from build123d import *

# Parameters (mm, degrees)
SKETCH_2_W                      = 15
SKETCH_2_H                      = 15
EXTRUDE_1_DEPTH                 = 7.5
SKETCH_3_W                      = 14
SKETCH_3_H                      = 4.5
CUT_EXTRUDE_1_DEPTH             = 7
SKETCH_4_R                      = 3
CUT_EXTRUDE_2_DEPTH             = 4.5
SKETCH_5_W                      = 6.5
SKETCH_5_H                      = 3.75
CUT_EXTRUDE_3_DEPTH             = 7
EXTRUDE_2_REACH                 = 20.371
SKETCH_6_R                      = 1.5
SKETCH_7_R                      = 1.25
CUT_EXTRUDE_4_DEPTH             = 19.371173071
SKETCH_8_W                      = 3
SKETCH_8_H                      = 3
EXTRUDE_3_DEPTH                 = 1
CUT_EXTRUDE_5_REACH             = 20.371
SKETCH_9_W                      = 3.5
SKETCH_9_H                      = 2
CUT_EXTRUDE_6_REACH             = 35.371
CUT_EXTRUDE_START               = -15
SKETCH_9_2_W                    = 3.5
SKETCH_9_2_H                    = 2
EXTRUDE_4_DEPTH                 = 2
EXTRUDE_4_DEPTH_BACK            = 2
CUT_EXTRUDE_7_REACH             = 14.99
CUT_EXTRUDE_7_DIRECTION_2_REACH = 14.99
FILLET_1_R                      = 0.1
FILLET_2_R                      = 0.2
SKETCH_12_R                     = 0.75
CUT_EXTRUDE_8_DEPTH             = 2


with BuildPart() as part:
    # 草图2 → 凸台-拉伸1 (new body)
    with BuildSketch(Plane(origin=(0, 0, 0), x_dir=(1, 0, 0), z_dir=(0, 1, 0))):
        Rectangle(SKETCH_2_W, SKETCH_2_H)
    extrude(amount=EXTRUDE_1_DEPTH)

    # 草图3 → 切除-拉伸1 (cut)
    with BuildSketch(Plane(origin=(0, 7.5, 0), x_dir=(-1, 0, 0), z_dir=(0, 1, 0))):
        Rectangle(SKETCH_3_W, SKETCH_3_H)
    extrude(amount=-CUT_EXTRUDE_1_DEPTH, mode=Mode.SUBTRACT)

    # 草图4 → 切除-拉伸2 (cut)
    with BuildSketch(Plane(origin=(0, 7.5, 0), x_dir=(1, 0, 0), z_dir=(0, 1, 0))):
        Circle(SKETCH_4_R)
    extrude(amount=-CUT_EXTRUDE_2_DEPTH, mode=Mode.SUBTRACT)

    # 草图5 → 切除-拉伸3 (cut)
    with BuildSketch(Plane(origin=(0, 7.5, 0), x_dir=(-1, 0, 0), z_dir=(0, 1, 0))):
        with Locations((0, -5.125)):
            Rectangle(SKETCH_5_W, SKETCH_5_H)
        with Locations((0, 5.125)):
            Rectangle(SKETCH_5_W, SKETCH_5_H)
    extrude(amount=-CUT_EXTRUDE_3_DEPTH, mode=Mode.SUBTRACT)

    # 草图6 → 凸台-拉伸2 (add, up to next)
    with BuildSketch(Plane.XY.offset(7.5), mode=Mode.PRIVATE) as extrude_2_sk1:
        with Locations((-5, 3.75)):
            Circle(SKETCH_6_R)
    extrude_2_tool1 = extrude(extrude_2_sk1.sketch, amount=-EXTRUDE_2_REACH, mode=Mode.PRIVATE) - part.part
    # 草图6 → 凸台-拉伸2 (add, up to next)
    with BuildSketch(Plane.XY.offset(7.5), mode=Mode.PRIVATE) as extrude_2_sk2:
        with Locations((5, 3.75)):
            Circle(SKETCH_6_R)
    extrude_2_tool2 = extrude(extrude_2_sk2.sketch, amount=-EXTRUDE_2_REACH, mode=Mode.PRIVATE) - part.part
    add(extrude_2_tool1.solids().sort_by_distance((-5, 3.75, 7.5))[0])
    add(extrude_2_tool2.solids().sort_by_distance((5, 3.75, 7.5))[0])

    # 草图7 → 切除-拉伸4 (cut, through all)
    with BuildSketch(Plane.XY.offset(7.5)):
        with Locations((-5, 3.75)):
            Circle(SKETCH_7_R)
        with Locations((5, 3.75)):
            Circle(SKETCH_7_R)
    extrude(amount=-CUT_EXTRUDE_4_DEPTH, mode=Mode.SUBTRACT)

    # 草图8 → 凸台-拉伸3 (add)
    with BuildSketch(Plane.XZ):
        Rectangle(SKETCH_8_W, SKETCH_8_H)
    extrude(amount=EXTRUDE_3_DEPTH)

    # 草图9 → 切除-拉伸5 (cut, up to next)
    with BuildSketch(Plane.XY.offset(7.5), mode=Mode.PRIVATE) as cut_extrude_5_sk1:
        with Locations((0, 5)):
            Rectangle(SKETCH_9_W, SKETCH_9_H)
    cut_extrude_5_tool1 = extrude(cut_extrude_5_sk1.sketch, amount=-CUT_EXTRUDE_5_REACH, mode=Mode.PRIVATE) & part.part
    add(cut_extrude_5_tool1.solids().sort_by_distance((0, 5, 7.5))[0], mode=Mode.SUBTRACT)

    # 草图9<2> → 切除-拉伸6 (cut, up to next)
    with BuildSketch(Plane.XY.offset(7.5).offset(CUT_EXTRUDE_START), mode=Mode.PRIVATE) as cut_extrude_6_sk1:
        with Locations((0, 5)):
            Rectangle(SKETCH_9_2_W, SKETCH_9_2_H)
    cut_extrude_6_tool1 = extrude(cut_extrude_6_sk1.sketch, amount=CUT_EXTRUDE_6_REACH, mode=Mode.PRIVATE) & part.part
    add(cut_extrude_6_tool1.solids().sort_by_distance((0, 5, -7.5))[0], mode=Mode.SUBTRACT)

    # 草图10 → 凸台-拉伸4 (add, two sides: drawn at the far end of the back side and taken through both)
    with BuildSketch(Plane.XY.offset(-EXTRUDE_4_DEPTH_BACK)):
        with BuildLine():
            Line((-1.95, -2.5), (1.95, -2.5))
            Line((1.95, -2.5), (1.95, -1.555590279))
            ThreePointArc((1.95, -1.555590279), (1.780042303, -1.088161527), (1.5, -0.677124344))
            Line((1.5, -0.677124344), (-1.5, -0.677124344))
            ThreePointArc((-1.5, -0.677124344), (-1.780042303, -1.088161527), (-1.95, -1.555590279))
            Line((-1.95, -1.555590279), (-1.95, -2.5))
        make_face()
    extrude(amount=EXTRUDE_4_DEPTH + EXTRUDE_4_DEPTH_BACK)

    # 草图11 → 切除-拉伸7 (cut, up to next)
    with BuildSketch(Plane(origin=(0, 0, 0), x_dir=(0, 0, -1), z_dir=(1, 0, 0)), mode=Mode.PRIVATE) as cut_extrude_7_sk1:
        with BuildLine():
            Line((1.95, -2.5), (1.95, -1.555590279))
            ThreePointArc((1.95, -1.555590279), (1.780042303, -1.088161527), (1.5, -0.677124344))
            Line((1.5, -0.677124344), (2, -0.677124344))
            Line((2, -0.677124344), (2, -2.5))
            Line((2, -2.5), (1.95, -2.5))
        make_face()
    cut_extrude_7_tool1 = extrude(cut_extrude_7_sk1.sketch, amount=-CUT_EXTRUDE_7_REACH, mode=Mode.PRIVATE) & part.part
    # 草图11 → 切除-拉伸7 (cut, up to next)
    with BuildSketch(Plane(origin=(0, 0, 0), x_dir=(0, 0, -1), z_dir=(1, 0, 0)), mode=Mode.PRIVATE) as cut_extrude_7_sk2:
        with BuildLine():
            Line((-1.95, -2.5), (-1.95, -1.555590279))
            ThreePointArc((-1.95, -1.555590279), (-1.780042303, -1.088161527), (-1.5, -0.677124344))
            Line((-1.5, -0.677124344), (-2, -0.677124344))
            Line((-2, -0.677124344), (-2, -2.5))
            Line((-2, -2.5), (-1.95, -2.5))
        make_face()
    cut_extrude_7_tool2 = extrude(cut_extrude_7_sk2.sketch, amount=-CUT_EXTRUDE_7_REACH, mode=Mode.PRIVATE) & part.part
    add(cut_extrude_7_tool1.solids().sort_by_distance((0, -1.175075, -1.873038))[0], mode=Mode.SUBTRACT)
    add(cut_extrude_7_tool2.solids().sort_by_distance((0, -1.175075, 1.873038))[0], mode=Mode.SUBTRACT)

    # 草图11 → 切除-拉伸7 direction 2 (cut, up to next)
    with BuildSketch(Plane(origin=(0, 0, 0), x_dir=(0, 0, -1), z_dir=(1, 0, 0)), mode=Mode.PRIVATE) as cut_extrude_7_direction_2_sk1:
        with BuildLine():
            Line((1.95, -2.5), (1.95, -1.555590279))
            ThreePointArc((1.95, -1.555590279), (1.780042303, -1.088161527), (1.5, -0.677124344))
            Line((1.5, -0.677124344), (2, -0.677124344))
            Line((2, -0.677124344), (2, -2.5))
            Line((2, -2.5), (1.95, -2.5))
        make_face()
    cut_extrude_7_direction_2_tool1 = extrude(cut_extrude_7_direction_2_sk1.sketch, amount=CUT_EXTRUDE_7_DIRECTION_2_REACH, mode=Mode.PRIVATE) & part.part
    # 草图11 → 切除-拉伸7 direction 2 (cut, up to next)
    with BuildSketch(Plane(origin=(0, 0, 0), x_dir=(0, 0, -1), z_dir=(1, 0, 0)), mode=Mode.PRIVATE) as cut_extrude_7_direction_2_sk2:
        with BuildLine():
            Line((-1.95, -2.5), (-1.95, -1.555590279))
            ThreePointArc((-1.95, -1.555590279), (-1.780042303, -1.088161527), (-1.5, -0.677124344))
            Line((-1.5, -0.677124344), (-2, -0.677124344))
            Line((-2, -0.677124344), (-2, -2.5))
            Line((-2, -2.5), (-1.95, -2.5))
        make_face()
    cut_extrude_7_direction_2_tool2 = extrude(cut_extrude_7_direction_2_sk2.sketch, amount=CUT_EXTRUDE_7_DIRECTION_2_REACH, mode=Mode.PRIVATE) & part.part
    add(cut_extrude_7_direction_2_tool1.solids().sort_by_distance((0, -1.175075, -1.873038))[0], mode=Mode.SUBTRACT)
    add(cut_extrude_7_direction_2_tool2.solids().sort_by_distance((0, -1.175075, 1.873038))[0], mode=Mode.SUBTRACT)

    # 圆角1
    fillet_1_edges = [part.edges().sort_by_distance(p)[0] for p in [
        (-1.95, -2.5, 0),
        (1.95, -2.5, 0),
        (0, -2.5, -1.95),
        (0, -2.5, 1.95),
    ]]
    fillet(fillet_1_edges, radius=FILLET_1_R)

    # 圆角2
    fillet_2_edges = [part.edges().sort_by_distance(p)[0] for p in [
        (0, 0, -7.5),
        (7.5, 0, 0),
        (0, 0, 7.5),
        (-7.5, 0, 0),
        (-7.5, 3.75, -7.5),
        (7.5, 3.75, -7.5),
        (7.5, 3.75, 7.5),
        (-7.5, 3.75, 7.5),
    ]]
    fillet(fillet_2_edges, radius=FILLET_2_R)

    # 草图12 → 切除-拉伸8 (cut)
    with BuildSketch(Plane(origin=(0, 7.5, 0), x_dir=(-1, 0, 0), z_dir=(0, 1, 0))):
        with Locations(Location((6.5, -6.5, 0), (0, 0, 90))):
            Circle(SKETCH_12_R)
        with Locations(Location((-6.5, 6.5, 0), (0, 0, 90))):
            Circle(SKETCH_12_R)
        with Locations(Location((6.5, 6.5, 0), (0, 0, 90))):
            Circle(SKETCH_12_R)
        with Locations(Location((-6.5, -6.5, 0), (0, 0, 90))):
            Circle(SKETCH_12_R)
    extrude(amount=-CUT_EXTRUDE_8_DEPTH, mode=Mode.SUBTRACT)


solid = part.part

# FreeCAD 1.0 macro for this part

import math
import FreeCAD as App
import Part
import Sketcher

V = App.Vector


def edges_at(feature, points):
    """Names of the edges that pass closest to the given points."""
    edges = feature.Shape.Edges
    near = lambda p: min(range(len(edges)), key=lambda i: edges[i].distToShape(Part.Vertex(*p))[0])
    return sorted({f"Edge{near(p) + 1}" for p in points})


def add_polygon(sketch, points):
    """Adds a closed chain of lines whose ends are joined by coincident constraints."""
    first, n = sketch.GeometryCount, len(points)
    for a, b in zip(points, points[1:] + points[:1]):
        sketch.addGeometry(Part.LineSegment(App.Vector(*a, 0), App.Vector(*b, 0)), False)
    for i in range(n):
        sketch.addConstraint(Sketcher.Constraint("Coincident", first + i, 2, first + (i + 1) % n, 1))

doc = App.newDocument("Part")
body = doc.addObject("PartDesign::Body", "Body")

sketch1 = body.newObject("Sketcher::SketchObject", "Sketch")
sketch1.AttachmentSupport = (doc.getObject("XZ_Plane"), [""])
sketch1.MapMode = "FlatFace"
add_polygon(sketch1, [(-8, -8), (-8, 8), (8, 8), (8, -8)])
sketch1.addConstraint([
    Sketcher.Constraint("Vertical", 0),
    Sketcher.Constraint("Horizontal", 1),
    Sketcher.Constraint("Vertical", 2),
    Sketcher.Constraint("Horizontal", 3),
    Sketcher.Constraint("Symmetric", 0, 2, 2, 2, -1, 1),
    Sketcher.Constraint("Equal", 3, 0),
    Sketcher.Constraint("DistanceX", 1, 1, 1, 2, 15.0),
])
pad1 = body.newObject("PartDesign::Pad", "Pad")
pad1.Profile = sketch1
pad1.Length = 7.5
pad1.Reversed = True

sketch2 = body.newObject("Sketcher::SketchObject", "Sketch001")
sketch2.AttachmentSupport = (doc.getObject("XZ_Plane"), [""])
sketch2.MapMode = "FlatFace"
sketch2.AttachmentOffset = App.Placement(V(0, 0, -7.5), App.Rotation())
add_polygon(sketch2, [(7, 2.2), (7, -2.2), (-7, -2.2), (-7, 2.2)])
sketch2.addConstraint([
    Sketcher.Constraint("Vertical", 0),
    Sketcher.Constraint("Horizontal", 1),
    Sketcher.Constraint("Vertical", 2),
    Sketcher.Constraint("Horizontal", 3),
    Sketcher.Constraint("Symmetric", 0, 2, 2, 2, -1, 1),
    Sketcher.Constraint("DistanceX", 1, 2, 1, 1, 14.0),
    Sketcher.Constraint("DistanceY", 0, 2, 0, 1, 4.5),
])
pocket1 = body.newObject("PartDesign::Pocket", "Pocket")
pocket1.Profile = sketch2
pocket1.Length = 7
pocket1.Reversed = True

sketch3 = body.newObject("Sketcher::SketchObject", "Sketch002")
sketch3.AttachmentSupport = (doc.getObject("XZ_Plane"), [""])
sketch3.MapMode = "FlatFace"
sketch3.AttachmentOffset = App.Placement(V(0, 0, -7.5), App.Rotation())
sketch3.addGeometry(Part.Circle(V(0, 0, 0), V(0, 0, 1), 3), False)
sketch3.addConstraint([
    Sketcher.Constraint("Coincident", 0, 3, -1, 1),
    Sketcher.Constraint("Diameter", 0, 6.0),
])
pocket2 = body.newObject("PartDesign::Pocket", "Pocket001")
pocket2.Profile = sketch3
pocket2.Length = 4.5
pocket2.Reversed = True

sketch4 = body.newObject("Sketcher::SketchObject", "Sketch003")
sketch4.AttachmentSupport = (doc.getObject("XZ_Plane"), [""])
sketch4.MapMode = "FlatFace"
sketch4.AttachmentOffset = App.Placement(V(0, 0, -7.5), App.Rotation())
add_polygon(sketch4, [(3.2, -3.2), (3.2, -7), (-3.2, -7), (-3.2, -3.2)])
add_polygon(sketch4, [(3.2, 7), (3.2, 3.2), (-3.2, 3.2), (-3.2, 7)])
sketch4.addConstraint([
    Sketcher.Constraint("Vertical", 0),
    Sketcher.Constraint("Horizontal", 1),
    Sketcher.Constraint("Vertical", 2),
    Sketcher.Constraint("Horizontal", 3),
    Sketcher.Constraint("Vertical", 4),
    Sketcher.Constraint("Horizontal", 5),
    Sketcher.Constraint("Vertical", 6),
    Sketcher.Constraint("Horizontal", 7),
    Sketcher.Constraint("Symmetric", 2, 2, 4, 2, -1, 1),
    Sketcher.Constraint("Symmetric", 0, 2, 6, 2, -1, 1),
    Sketcher.Constraint("Vertical", 3, 2, 4, 2),
    Sketcher.Constraint("DistanceX", 1, 2, 1, 1, 6.5),
    Sketcher.Constraint("DistanceY", 0, 2, -1, 1, 7.0),
    Sketcher.Constraint("DistanceY", 0, 2, 0, 1, 3.75),
])
pocket3 = body.newObject("PartDesign::Pocket", "Pocket002")
pocket3.Profile = sketch4
pocket3.Length = 7
pocket3.Reversed = True

sketch5 = body.newObject("Sketcher::SketchObject", "Sketch004")
sketch5.AttachmentSupport = (doc.getObject("XY_Plane"), [""])
sketch5.MapMode = "FlatFace"
sketch5.AttachmentOffset = App.Placement(V(0, 0, 7.5), App.Rotation())
sketch5.addGeometry(Part.Circle(V(-5, 3.8, 0), V(0, 0, 1), 1.5), False)
sketch5.addConstraint([
    Sketcher.Constraint("Diameter", 0, 3.0),
    Sketcher.Constraint("DistanceX", 0, 3, -1, 1, 5.0),
    Sketcher.Constraint("DistanceY", -1, 1, 0, 3, 3.75),
])
pad2 = body.newObject("PartDesign::Pad", "Pad001")
pad2.Profile = sketch5
pad2.Length = 9.75
pad2.Reversed = True

sketch6 = body.newObject("Sketcher::SketchObject", "Sketch005")
sketch6.AttachmentSupport = (doc.getObject("XY_Plane"), [""])
sketch6.MapMode = "FlatFace"
sketch6.AttachmentOffset = App.Placement(V(0, 0, 7.5), App.Rotation())
sketch6.addGeometry(Part.Circle(V(5, 3.8, 0), V(0, 0, 1), 1.5), False)
sketch6.addConstraint([
    Sketcher.Constraint("Diameter", 0, 3.0),
    Sketcher.Constraint("DistanceX", -1, 1, 0, 3, 5.0),
    Sketcher.Constraint("DistanceY", -1, 1, 0, 3, 3.75),
])
pad3 = body.newObject("PartDesign::Pad", "Pad002")
pad3.Profile = sketch6
pad3.Length = 9.75
pad3.Reversed = True

sketch7 = body.newObject("Sketcher::SketchObject", "Sketch006")
sketch7.AttachmentSupport = (doc.getObject("XY_Plane"), [""])
sketch7.MapMode = "FlatFace"
sketch7.AttachmentOffset = App.Placement(V(0, 0, 7.5), App.Rotation())
sketch7.addGeometry([
    Part.Circle(V(-5, 3.8, 0), V(0, 0, 1), 1.2),
    Part.Circle(V(5, 3.8, 0), V(0, 0, 1), 1.2),
], False)
sketch7.addConstraint([
    Sketcher.Constraint("Equal", 0, 1),
    Sketcher.Constraint("Symmetric", 0, 3, 1, 3, -2),
    Sketcher.Constraint("Diameter", 0, 2.5),
    Sketcher.Constraint("DistanceX", 0, 3, -1, 1, 5.0),
    Sketcher.Constraint("DistanceY", -1, 1, 0, 3, 3.75),
])
pocket4 = body.newObject("PartDesign::Pocket", "Pocket003")
pocket4.Profile = sketch7
pocket4.Type = "ThroughAll"

sketch8 = body.newObject("Sketcher::SketchObject", "Sketch007")
sketch8.AttachmentSupport = (doc.getObject("XZ_Plane"), [""])
sketch8.MapMode = "FlatFace"
add_polygon(sketch8, [(-1.5, 1.5), (-1.5, -1.5), (1.5, -1.5), (1.5, 1.5)])
sketch8.addConstraint([
    Sketcher.Constraint("Vertical", 0),
    Sketcher.Constraint("Horizontal", 1),
    Sketcher.Constraint("Vertical", 2),
    Sketcher.Constraint("Horizontal", 3),
    Sketcher.Constraint("Symmetric", 0, 2, 2, 2, -1, 1),
    Sketcher.Constraint("Equal", 3, 0),
    Sketcher.Constraint("DistanceX", 1, 1, 1, 2, 3.0),
])
pad4 = body.newObject("PartDesign::Pad", "Pad003")
pad4.Profile = sketch8
pad4.Length = 1

sketch9 = body.newObject("Sketcher::SketchObject", "Sketch008")
sketch9.AttachmentSupport = (doc.getObject("XY_Plane"), [""])
sketch9.MapMode = "FlatFace"
sketch9.AttachmentOffset = App.Placement(V(0, 0, 7.5), App.Rotation())
add_polygon(sketch9, [(-1.8, 6), (-1.8, 4), (1.8, 4), (1.8, 6)])
sketch9.addConstraint([
    Sketcher.Constraint("Vertical", 0),
    Sketcher.Constraint("Horizontal", 1),
    Sketcher.Constraint("Vertical", 2),
    Sketcher.Constraint("Horizontal", 3),
    Sketcher.Constraint("DistanceY", 0, 2, 0, 1, 2.0),
    Sketcher.Constraint("DistanceX", 1, 1, 1, 2, 3.5),
    Sketcher.Constraint("DistanceY", -1, 1, 0, 2, 4.0),
    Sketcher.Constraint("DistanceX", 0, 2, -1, 1, 1.75),
])
pocket5 = body.newObject("PartDesign::Pocket", "Pocket004")
pocket5.Profile = sketch9
pocket5.Type = "UpToFirst"

sketch10 = body.newObject("Sketcher::SketchObject", "Sketch009")
sketch10.AttachmentSupport = (doc.getObject("XY_Plane"), [""])
sketch10.MapMode = "FlatFace"
sketch10.AttachmentOffset = App.Placement(V(0, 0, -7.5), App.Rotation())
add_polygon(sketch10, [(-1.8, 6), (-1.8, 4), (1.8, 4), (1.8, 6)])
sketch10.addConstraint([
    Sketcher.Constraint("Vertical", 0),
    Sketcher.Constraint("Horizontal", 1),
    Sketcher.Constraint("Vertical", 2),
    Sketcher.Constraint("Horizontal", 3),
    Sketcher.Constraint("DistanceY", 0, 2, 0, 1, 2.0),
    Sketcher.Constraint("DistanceX", 1, 1, 1, 2, 3.5),
    Sketcher.Constraint("DistanceY", -1, 1, 0, 2, 4.0),
    Sketcher.Constraint("DistanceX", 0, 2, -1, 1, 1.75),
])
pocket6 = body.newObject("PartDesign::Pocket", "Pocket005")
pocket6.Profile = sketch10
pocket6.Type = "UpToFirst"
pocket6.Reversed = True

sketch11 = body.newObject("Sketcher::SketchObject", "Sketch010")
sketch11.AttachmentSupport = (doc.getObject("XY_Plane"), [""])
sketch11.MapMode = "FlatFace"
sketch11.addGeometry([
    Part.LineSegment(V(-1.9, -2.5, 0), V(1.9, -2.5, 0)),
    Part.LineSegment(V(1.9, -2.5, 0), V(1.9, -1.6, 0)),
    Part.ArcOfCircle(Part.Circle(V(0, -2, 0), V(0, 0, 1), 2), math.radians(13), math.radians(41)),
    Part.LineSegment(V(1.5, -0.7, 0), V(-1.5, -0.7, 0)),
    Part.ArcOfCircle(Part.Circle(V(0, -2, 0), V(0, 0, 1), 2), math.radians(139), math.radians(167)),
    Part.LineSegment(V(-1.9, -1.6, 0), V(-1.9, -2.5, 0)),
], False)
sketch11.addConstraint([
    Sketcher.Constraint("Coincident", 0, 2, 1, 1),
    Sketcher.Constraint("Coincident", 1, 2, 2, 1),
    Sketcher.Constraint("Coincident", 2, 2, 3, 1),
    Sketcher.Constraint("Coincident", 3, 2, 4, 1),
    Sketcher.Constraint("Coincident", 4, 2, 5, 1),
    Sketcher.Constraint("Coincident", 5, 2, 0, 1),
    Sketcher.Constraint("Horizontal", 0),
    Sketcher.Constraint("Vertical", 1),
    Sketcher.Constraint("Horizontal", 3),
    Sketcher.Constraint("Vertical", 5),
    Sketcher.Constraint("Coincident", 4, 3, 2, 3),
    Sketcher.Constraint("Equal", 2, 4),
    Sketcher.Constraint("Symmetric", 1, 2, 4, 2, -2),
    Sketcher.Constraint("Radius", 2, 2.0),
    Sketcher.Constraint("DistanceX", 3, 2, 3, 1, 3.0),
    Sketcher.Constraint("DistanceX", 0, 1, 0, 2, 3.9),
    Sketcher.Constraint("DistanceY", 2, 3, -1, 1, 2.0),
    Sketcher.Constraint("DistanceY", 0, 2, -1, 1, 2.5),
])
pad5 = body.newObject("PartDesign::Pad", "Pad004")
pad5.Profile = sketch11
pad5.Type = "TwoLengths"
pad5.Length = 2
pad5.Length2 = 2

sketch12 = body.newObject("Sketcher::SketchObject", "Sketch011")
sketch12.AttachmentSupport = (doc.getObject("YZ_Plane"), [""])
sketch12.MapMode = "FlatFace"
sketch12.addGeometry([
    Part.LineSegment(V(-1.56, -1.95, 0), V(-2.5, -1.95, 0)),
    Part.LineSegment(V(-2.5, -1.95, 0), V(-2.5, -2, 0)),
    Part.LineSegment(V(-2.5, -2, 0), V(-0.68, -2, 0)),
    Part.LineSegment(V(-0.68, -2, 0), V(-0.68, -1.5, 0)),
    Part.ArcOfCircle(Part.Circle(V(-2, 0, 0), V(0, 0, 1), 2), math.radians(-77), math.radians(-49)),
], False)
sketch12.addConstraint([
    Sketcher.Constraint("Coincident", 0, 2, 1, 1),
    Sketcher.Constraint("Coincident", 1, 2, 2, 1),
    Sketcher.Constraint("Coincident", 2, 2, 3, 1),
    Sketcher.Constraint("Coincident", 3, 2, 4, 2),
    Sketcher.Constraint("Coincident", 4, 1, 0, 1),
    Sketcher.Constraint("Horizontal", 0),
    Sketcher.Constraint("Vertical", 1),
    Sketcher.Constraint("Horizontal", 2),
    Sketcher.Constraint("Vertical", 3),
    Sketcher.Constraint("PointOnObject", 4, 3, -1),
    Sketcher.Constraint("Radius", 4, 2.0),
    Sketcher.Constraint("DistanceY", 3, 1, 3, 2, 0.5),
    Sketcher.Constraint("DistanceX", 4, 3, -1, 1, 2.0),
    Sketcher.Constraint("DistanceY", 1, 2, -1, 1, 2.0),
    Sketcher.Constraint("DistanceY", 1, 2, 1, 1, 0.05),
    Sketcher.Constraint("DistanceX", 0, 2, -1, 1, 2.5),
])
pocket7 = body.newObject("PartDesign::Pocket", "Pocket006")
pocket7.Profile = sketch12
pocket7.Type = "UpToFirst"

sketch13 = body.newObject("Sketcher::SketchObject", "Sketch012")
sketch13.AttachmentSupport = (doc.getObject("YZ_Plane"), [""])
sketch13.MapMode = "FlatFace"
sketch13.addGeometry([
    Part.LineSegment(V(-2.5, 1.95, 0), V(-1.56, 1.95, 0)),
    Part.ArcOfCircle(Part.Circle(V(-2, 0, 0), V(0, 0, 1), 2), math.radians(49), math.radians(77)),
    Part.LineSegment(V(-0.68, 1.5, 0), V(-0.68, 2, 0)),
    Part.LineSegment(V(-0.68, 2, 0), V(-2.5, 2, 0)),
    Part.LineSegment(V(-2.5, 2, 0), V(-2.5, 1.95, 0)),
], False)
sketch13.addConstraint([
    Sketcher.Constraint("Coincident", 0, 2, 1, 2),
    Sketcher.Constraint("Coincident", 1, 1, 2, 1),
    Sketcher.Constraint("Coincident", 2, 2, 3, 1),
    Sketcher.Constraint("Coincident", 3, 2, 4, 1),
    Sketcher.Constraint("Coincident", 4, 2, 0, 1),
    Sketcher.Constraint("Horizontal", 0),
    Sketcher.Constraint("Vertical", 2),
    Sketcher.Constraint("Horizontal", 3),
    Sketcher.Constraint("Vertical", 4),
    Sketcher.Constraint("PointOnObject", 1, 3, -1),
    Sketcher.Constraint("Radius", 1, 2.0),
    Sketcher.Constraint("DistanceY", 2, 1, 2, 2, 0.5),
    Sketcher.Constraint("DistanceX", 1, 3, -1, 1, 2.0),
    Sketcher.Constraint("DistanceY", -1, 1, 2, 2, 2.0),
    Sketcher.Constraint("DistanceY", 4, 2, 4, 1, 0.05),
    Sketcher.Constraint("DistanceX", 3, 2, -1, 1, 2.5),
])
pocket8 = body.newObject("PartDesign::Pocket", "Pocket007")
pocket8.Profile = sketch13
pocket8.Type = "UpToFirst"

sketch14 = body.newObject("Sketcher::SketchObject", "Sketch013")
sketch14.AttachmentSupport = (doc.getObject("YZ_Plane"), [""])
sketch14.MapMode = "FlatFace"
sketch14.addGeometry([
    Part.LineSegment(V(-1.56, -1.95, 0), V(-2.5, -1.95, 0)),
    Part.LineSegment(V(-2.5, -1.95, 0), V(-2.5, -2, 0)),
    Part.LineSegment(V(-2.5, -2, 0), V(-0.68, -2, 0)),
    Part.LineSegment(V(-0.68, -2, 0), V(-0.68, -1.5, 0)),
    Part.ArcOfCircle(Part.Circle(V(-2, 0, 0), V(0, 0, 1), 2), math.radians(-77), math.radians(-49)),
], False)
sketch14.addConstraint([
    Sketcher.Constraint("Coincident", 0, 2, 1, 1),
    Sketcher.Constraint("Coincident", 1, 2, 2, 1),
    Sketcher.Constraint("Coincident", 2, 2, 3, 1),
    Sketcher.Constraint("Coincident", 3, 2, 4, 2),
    Sketcher.Constraint("Coincident", 4, 1, 0, 1),
    Sketcher.Constraint("Horizontal", 0),
    Sketcher.Constraint("Vertical", 1),
    Sketcher.Constraint("Horizontal", 2),
    Sketcher.Constraint("Vertical", 3),
    Sketcher.Constraint("PointOnObject", 4, 3, -1),
    Sketcher.Constraint("Radius", 4, 2.0),
    Sketcher.Constraint("DistanceY", 3, 1, 3, 2, 0.5),
    Sketcher.Constraint("DistanceX", 4, 3, -1, 1, 2.0),
    Sketcher.Constraint("DistanceY", 1, 2, -1, 1, 2.0),
    Sketcher.Constraint("DistanceY", 1, 2, 1, 1, 0.05),
    Sketcher.Constraint("DistanceX", 0, 2, -1, 1, 2.5),
])
pocket9 = body.newObject("PartDesign::Pocket", "Pocket008")
pocket9.Profile = sketch14
pocket9.Type = "UpToFirst"
pocket9.Reversed = True

sketch15 = body.newObject("Sketcher::SketchObject", "Sketch014")
sketch15.AttachmentSupport = (doc.getObject("YZ_Plane"), [""])
sketch15.MapMode = "FlatFace"
sketch15.addGeometry([
    Part.LineSegment(V(-2.5, 1.95, 0), V(-1.56, 1.95, 0)),
    Part.ArcOfCircle(Part.Circle(V(-2, 0, 0), V(0, 0, 1), 2), math.radians(49), math.radians(77)),
    Part.LineSegment(V(-0.68, 1.5, 0), V(-0.68, 2, 0)),
    Part.LineSegment(V(-0.68, 2, 0), V(-2.5, 2, 0)),
    Part.LineSegment(V(-2.5, 2, 0), V(-2.5, 1.95, 0)),
], False)
sketch15.addConstraint([
    Sketcher.Constraint("Coincident", 0, 2, 1, 2),
    Sketcher.Constraint("Coincident", 1, 1, 2, 1),
    Sketcher.Constraint("Coincident", 2, 2, 3, 1),
    Sketcher.Constraint("Coincident", 3, 2, 4, 1),
    Sketcher.Constraint("Coincident", 4, 2, 0, 1),
    Sketcher.Constraint("Horizontal", 0),
    Sketcher.Constraint("Vertical", 2),
    Sketcher.Constraint("Horizontal", 3),
    Sketcher.Constraint("Vertical", 4),
    Sketcher.Constraint("PointOnObject", 1, 3, -1),
    Sketcher.Constraint("Radius", 1, 2.0),
    Sketcher.Constraint("DistanceY", 2, 1, 2, 2, 0.5),
    Sketcher.Constraint("DistanceX", 1, 3, -1, 1, 2.0),
    Sketcher.Constraint("DistanceY", -1, 1, 2, 2, 2.0),
    Sketcher.Constraint("DistanceY", 4, 2, 4, 1, 0.05),
    Sketcher.Constraint("DistanceX", 3, 2, -1, 1, 2.5),
])
pocket10 = body.newObject("PartDesign::Pocket", "Pocket009")
pocket10.Profile = sketch15
pocket10.Type = "UpToFirst"
pocket10.Reversed = True
doc.recompute()

fillet = body.newObject("PartDesign::Fillet", "Fillet")
fillet.Base = (pocket10, edges_at(pocket10, [
    (-1.95, -2.5, 0),
    (1.95, -2.5, 0),
    (0, -2.5, -1.95),
    (0, -2.5, 1.95),
]))
fillet.Radius = 0.1
doc.recompute()

fillet2 = body.newObject("PartDesign::Fillet", "Fillet001")
fillet2.Base = (fillet, edges_at(fillet, [
    (0, 0, -7.5),
    (7.5, 0, 0),
    (0, 0, 7.5),
    (-7.5, 0, 0),
    (-7.5, 3.75, -7.5),
    (7.5, 3.75, -7.5),
    (7.5, 3.75, 7.5),
    (-7.5, 3.75, 7.5),
]))
fillet2.Radius = 0.2

sketch16 = body.newObject("Sketcher::SketchObject", "Sketch015")
sketch16.AttachmentSupport = (doc.getObject("XZ_Plane"), [""])
sketch16.MapMode = "FlatFace"
sketch16.AttachmentOffset = App.Placement(V(0, 0, -7.5), App.Rotation())
sketch16.addGeometry([
    Part.Circle(V(-6.5, -6.5, 0), V(0, 0, 1), 0.8),
    Part.Circle(V(6.5, 6.5, 0), V(0, 0, 1), 0.8),
    Part.Circle(V(-6.5, 6.5, 0), V(0, 0, 1), 0.8),
    Part.Circle(V(6.5, -6.5, 0), V(0, 0, 1), 0.8),
], False)
sketch16.addConstraint([
    Sketcher.Constraint("Equal", 0, 1),
    Sketcher.Constraint("Equal", 1, 2),
    Sketcher.Constraint("Equal", 2, 3),
    Sketcher.Constraint("Symmetric", 0, 3, 1, 3, -1, 1),
    Sketcher.Constraint("Symmetric", 2, 3, 3, 3, -1, 1),
    Sketcher.Constraint("Symmetric", 1, 3, 2, 3, -2),
    Sketcher.Constraint("Diameter", 0, 1.5),
    Sketcher.Constraint("DistanceX", 0, 3, 1, 3, 13.0),
    Sketcher.Constraint("DistanceY", 0, 3, 1, 3, 13.0),
])
pocket11 = body.newObject("PartDesign::Pocket", "Pocket010")
pocket11.Profile = sketch16
pocket11.Length = 2
pocket11.Reversed = True

doc.recompute()
